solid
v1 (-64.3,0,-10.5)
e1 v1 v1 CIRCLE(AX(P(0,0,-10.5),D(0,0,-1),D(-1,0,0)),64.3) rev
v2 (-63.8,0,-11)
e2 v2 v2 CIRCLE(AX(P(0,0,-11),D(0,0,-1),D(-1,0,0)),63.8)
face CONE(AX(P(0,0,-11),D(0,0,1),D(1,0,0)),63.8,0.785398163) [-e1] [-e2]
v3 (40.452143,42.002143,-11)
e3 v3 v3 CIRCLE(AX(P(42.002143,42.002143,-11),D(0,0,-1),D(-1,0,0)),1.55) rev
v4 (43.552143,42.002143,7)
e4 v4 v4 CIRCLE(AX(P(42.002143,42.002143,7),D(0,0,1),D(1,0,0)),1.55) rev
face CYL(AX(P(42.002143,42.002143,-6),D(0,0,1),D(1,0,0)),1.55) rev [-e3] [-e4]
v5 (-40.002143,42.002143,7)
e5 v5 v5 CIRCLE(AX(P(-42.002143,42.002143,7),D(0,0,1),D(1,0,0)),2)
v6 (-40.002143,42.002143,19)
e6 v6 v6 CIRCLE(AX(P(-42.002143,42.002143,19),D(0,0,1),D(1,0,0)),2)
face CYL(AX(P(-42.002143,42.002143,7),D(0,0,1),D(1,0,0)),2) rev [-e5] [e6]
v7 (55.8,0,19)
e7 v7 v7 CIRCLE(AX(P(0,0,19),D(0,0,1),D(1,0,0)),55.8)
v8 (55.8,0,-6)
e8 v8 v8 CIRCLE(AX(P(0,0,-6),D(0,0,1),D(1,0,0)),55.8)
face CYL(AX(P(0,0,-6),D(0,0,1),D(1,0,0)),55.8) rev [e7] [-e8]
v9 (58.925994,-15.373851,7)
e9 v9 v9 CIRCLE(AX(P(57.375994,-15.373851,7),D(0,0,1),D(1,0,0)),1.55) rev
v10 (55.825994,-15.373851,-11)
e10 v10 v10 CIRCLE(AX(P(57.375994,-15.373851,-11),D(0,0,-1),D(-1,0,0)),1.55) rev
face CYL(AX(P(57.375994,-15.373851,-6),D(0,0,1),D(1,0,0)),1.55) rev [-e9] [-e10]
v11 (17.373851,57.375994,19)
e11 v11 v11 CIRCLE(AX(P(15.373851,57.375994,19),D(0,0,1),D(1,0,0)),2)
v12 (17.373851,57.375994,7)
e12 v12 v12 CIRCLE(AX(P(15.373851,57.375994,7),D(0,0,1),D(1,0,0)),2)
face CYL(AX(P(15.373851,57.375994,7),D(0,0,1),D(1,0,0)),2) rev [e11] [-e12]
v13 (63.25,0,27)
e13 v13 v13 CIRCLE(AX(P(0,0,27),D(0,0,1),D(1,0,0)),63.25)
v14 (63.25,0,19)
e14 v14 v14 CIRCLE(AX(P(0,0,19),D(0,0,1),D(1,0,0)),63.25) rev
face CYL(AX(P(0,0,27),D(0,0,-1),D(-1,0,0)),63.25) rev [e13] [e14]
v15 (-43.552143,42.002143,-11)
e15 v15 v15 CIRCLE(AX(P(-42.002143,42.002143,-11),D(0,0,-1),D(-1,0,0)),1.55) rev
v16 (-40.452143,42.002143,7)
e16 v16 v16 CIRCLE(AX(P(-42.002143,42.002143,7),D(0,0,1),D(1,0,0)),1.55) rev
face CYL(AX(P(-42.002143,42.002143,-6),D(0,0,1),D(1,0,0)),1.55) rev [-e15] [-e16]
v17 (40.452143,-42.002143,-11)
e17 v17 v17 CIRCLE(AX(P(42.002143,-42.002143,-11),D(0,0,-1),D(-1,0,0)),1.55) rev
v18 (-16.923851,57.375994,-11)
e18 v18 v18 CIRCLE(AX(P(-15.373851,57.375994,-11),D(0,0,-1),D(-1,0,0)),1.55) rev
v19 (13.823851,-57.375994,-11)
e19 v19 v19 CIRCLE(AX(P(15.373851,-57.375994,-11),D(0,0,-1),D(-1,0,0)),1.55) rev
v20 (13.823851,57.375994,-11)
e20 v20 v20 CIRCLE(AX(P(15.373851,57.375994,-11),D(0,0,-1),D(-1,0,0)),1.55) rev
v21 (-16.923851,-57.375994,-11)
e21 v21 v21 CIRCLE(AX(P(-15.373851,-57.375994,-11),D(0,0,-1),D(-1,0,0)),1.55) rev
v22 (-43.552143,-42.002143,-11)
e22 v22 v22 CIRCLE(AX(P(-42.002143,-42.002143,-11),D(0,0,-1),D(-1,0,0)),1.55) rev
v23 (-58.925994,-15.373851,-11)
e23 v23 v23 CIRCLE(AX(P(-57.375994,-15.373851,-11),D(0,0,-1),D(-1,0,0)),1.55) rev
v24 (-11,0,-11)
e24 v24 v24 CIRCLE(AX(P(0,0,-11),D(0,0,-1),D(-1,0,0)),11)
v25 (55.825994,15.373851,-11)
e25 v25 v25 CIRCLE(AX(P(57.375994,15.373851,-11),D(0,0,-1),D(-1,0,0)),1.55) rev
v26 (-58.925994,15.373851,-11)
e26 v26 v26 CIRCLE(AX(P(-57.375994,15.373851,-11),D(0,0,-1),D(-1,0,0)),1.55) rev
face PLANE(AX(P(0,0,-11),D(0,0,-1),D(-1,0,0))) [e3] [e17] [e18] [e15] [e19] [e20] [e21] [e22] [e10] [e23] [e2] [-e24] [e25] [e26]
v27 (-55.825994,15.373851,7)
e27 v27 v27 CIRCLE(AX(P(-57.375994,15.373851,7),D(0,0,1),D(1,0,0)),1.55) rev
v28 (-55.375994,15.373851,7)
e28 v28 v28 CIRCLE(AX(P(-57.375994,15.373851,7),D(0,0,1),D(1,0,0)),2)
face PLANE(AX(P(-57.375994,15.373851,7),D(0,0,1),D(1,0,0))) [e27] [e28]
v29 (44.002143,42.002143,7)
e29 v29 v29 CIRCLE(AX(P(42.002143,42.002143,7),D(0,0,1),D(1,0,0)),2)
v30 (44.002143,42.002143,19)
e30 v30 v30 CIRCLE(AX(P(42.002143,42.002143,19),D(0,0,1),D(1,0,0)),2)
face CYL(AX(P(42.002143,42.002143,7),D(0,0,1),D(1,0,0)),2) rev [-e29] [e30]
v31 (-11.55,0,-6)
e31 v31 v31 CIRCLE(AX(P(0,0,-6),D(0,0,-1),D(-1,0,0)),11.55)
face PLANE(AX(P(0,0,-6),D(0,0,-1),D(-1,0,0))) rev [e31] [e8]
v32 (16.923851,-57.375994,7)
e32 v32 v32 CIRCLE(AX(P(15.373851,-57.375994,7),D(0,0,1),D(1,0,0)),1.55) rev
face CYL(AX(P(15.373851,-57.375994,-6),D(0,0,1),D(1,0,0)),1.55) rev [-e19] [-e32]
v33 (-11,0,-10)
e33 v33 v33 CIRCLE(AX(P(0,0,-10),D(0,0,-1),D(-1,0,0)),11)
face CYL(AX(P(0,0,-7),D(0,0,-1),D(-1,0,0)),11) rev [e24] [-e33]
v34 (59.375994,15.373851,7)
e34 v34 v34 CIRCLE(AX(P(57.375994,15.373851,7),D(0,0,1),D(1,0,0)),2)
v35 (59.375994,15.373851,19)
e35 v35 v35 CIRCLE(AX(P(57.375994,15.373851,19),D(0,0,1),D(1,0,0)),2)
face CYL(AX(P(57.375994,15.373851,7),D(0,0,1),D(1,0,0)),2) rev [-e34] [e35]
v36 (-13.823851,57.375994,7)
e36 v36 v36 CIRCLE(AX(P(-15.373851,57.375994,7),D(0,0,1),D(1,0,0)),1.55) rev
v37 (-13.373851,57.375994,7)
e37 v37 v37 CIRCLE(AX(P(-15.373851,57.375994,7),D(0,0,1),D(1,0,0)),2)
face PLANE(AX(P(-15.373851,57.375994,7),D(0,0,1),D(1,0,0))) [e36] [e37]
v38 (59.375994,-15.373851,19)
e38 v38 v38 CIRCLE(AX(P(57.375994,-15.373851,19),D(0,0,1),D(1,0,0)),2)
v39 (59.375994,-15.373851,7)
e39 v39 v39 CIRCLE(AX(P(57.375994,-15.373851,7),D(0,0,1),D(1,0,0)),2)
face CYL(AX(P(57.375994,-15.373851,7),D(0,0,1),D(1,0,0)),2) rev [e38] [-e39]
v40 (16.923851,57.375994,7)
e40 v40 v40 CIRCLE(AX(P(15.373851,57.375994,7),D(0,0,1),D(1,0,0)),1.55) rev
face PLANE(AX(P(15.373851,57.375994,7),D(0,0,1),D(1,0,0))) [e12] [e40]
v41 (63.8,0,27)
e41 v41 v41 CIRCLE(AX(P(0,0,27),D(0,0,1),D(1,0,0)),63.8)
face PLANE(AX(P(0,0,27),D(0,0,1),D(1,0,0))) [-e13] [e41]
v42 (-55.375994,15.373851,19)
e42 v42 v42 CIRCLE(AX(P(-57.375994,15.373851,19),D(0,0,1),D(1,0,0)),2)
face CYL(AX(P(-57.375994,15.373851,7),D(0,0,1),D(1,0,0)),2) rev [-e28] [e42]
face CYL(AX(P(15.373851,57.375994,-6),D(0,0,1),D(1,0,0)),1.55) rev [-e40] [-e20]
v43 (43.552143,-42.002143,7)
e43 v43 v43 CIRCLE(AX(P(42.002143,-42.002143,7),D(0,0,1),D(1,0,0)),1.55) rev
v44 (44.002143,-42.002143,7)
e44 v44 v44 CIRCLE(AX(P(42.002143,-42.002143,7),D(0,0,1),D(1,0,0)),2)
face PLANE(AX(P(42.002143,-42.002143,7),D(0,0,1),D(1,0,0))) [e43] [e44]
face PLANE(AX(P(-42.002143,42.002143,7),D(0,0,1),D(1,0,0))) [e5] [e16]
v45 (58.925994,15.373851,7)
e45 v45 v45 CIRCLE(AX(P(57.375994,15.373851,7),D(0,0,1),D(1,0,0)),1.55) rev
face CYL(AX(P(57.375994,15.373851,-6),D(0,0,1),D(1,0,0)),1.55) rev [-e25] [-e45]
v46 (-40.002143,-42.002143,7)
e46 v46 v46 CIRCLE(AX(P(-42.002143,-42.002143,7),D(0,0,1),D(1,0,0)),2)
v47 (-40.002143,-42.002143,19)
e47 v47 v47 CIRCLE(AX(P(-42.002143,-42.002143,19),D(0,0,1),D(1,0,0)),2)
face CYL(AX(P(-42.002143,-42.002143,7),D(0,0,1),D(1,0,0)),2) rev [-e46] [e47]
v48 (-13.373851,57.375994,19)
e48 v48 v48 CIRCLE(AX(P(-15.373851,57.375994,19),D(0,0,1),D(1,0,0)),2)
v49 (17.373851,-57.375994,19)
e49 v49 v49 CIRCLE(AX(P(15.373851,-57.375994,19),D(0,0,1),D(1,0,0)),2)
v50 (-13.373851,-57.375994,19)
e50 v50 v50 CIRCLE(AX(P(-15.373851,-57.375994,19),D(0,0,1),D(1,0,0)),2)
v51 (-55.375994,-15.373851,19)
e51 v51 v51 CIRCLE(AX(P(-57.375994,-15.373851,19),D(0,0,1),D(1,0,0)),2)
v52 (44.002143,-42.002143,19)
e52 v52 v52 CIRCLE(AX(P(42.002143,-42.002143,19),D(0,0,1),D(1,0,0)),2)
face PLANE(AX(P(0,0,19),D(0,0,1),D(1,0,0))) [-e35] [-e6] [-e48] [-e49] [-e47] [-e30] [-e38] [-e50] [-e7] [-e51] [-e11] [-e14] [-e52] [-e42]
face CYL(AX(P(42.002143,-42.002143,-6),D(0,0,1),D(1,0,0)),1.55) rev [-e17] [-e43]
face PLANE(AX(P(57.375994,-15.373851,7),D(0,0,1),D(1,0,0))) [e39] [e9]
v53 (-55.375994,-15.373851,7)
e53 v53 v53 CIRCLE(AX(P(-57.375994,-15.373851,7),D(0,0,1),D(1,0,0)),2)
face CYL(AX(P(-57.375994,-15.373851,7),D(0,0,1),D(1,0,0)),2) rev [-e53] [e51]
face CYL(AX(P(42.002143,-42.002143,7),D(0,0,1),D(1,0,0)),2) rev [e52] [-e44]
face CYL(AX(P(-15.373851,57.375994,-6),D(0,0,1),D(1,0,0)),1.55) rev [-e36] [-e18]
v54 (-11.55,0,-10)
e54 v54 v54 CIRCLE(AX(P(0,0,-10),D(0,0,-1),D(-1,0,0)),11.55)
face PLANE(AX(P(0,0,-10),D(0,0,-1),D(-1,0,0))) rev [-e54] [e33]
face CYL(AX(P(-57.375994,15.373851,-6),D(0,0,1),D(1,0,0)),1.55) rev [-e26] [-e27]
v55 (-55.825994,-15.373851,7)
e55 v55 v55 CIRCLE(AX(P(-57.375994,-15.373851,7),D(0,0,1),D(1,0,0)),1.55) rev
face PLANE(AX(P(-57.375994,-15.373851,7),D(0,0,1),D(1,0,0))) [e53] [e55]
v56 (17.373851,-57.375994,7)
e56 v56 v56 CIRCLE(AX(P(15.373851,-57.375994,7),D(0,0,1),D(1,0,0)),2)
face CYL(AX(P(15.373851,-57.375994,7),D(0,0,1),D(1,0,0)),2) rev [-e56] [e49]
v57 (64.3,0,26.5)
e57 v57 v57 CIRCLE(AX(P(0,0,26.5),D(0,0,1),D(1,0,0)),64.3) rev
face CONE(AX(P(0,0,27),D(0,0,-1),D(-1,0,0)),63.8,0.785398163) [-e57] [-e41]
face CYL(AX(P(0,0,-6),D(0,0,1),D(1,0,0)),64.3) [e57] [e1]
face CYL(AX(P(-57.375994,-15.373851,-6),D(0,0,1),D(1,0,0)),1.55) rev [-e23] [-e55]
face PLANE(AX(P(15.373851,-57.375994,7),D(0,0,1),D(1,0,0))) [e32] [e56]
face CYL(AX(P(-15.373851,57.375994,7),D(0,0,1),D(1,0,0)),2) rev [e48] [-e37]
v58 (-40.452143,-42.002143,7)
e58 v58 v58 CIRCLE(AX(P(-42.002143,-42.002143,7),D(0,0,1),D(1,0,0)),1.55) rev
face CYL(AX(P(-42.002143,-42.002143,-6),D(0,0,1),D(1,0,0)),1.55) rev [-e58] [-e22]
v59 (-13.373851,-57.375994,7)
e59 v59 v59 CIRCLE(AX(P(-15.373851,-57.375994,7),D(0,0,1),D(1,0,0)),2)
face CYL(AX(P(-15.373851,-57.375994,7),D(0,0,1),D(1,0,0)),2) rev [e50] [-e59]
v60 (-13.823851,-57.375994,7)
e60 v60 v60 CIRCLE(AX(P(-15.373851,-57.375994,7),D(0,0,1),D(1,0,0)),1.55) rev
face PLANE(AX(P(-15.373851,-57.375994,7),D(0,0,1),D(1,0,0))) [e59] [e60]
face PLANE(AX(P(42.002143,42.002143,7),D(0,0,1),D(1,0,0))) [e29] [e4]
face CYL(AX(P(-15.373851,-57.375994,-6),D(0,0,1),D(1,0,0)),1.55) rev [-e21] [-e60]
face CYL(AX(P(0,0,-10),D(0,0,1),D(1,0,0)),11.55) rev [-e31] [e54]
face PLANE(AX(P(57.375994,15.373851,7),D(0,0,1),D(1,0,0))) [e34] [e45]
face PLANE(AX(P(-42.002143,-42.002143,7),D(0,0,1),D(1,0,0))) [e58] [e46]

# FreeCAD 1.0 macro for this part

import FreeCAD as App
import Part
import Sketcher

V = App.Vector


def edges_at(feature, points):
    """Names of the edges that pass closest to the given points."""
    edges = feature.Shape.Edges
    near = lambda p: min(range(len(edges)), key=lambda i: edges[i].distToShape(Part.Vertex(*p))[0])
    return sorted({f"Edge{near(p) + 1}" for p in points})

doc = App.newDocument("Part")
params = doc.addObject("Spreadsheet::Sheet", "Params")
for row, (alias, value) in enumerate([
    ("sketch1_diameter", "128.6 mm"),
    ("sketch1_diameter2", "3.1 mm"),
    ("sketch1_diameter3", "111.6 mm"),
    ("pad1_length", "25 mm"),
    ("sketch2_diameter", "128.6 mm"),
    ("sketch2_diameter2", "3.1 mm"),
    ("pad2_length", "5 mm"),
    ("sketch3_diameter", "23.1 mm"),
    ("pocket1_length", "4 mm"),
    ("sketch4_diameter", "22 mm"),
    ("pocket2_length", "4 mm"),
    ("sketch5_diameter", "128.6 mm"),
    ("sketch5_diameter2", "126.5 mm"),
    ("pad3_length", "8 mm"),
    ("sketch6_diameter", "4 mm"),
    ("pocket3_length", "12 mm"),
    ("chamfer_size", "0.5 mm"),
], start=1):
    params.set(f"A{row}", alias)
    params.set(f"B{row}", "=" + value)
    params.setAlias(f"B{row}", alias)

body = doc.addObject("PartDesign::Body", "Body")

sketch1 = body.newObject("Sketcher::SketchObject", "Sketch")
sketch1.AttachmentSupport = (doc.getObject("XY_Plane"), [""])
sketch1.MapMode = "FlatFace"
sketch1.AttachmentOffset = App.Placement(V(0, 0, 19), App.Rotation())
sketch1.addGeometry(Part.Circle(V(0, 0, 0), V(0, 0, 1), 64.3), False)
sketch1.addGeometry(Part.Circle(V(-42, -42, 0), V(0, 0, 1), 1.6), False)
sketch1.addGeometry(Part.Circle(V(-15.4, -57.4, 0), V(0, 0, 1), 1.6), False)
sketch1.addGeometry(Part.Circle(V(-57.4, -15.4, 0), V(0, 0, 1), 1.6), False)
sketch1.addGeometry(Part.Circle(V(15.4, -57.4, 0), V(0, 0, 1), 1.6), False)
sketch1.addGeometry(Part.Circle(V(42, -42, 0), V(0, 0, 1), 1.6), False)
sketch1.addGeometry(Part.Circle(V(0, 0, 0), V(0, 0, 1), 55.8), False)
sketch1.addGeometry(Part.Circle(V(57.4, -15.4, 0), V(0, 0, 1), 1.6), False)
sketch1.addGeometry(Part.Circle(V(-57.4, 15.4, 0), V(0, 0, 1), 1.6), False)
sketch1.addGeometry(Part.Circle(V(-42, 42, 0), V(0, 0, 1), 1.6), False)
sketch1.addGeometry(Part.Circle(V(-15.4, 57.4, 0), V(0, 0, 1), 1.6), False)
sketch1.addGeometry(Part.Circle(V(57.4, 15.4, 0), V(0, 0, 1), 1.6), False)
sketch1.addGeometry(Part.Circle(V(15.4, 57.4, 0), V(0, 0, 1), 1.6), False)
sketch1.addGeometry(Part.Circle(V(42, 42, 0), V(0, 0, 1), 1.6), False)
sketch1.addConstraint(Sketcher.Constraint("Coincident", 0, 3, -1, 1))
sketch1.addConstraint(Sketcher.Constraint("Coincident", 6, 3, -1, 1))
sketch1.addConstraint(Sketcher.Constraint("Equal", 1, 2))
sketch1.addConstraint(Sketcher.Constraint("Equal", 2, 3))
sketch1.addConstraint(Sketcher.Constraint("Equal", 3, 4))
sketch1.addConstraint(Sketcher.Constraint("Equal", 4, 5))
sketch1.addConstraint(Sketcher.Constraint("Equal", 5, 7))
sketch1.addConstraint(Sketcher.Constraint("Equal", 7, 8))
sketch1.addConstraint(Sketcher.Constraint("Equal", 8, 9))
sketch1.addConstraint(Sketcher.Constraint("Equal", 9, 10))
sketch1.addConstraint(Sketcher.Constraint("Equal", 10, 11))
sketch1.addConstraint(Sketcher.Constraint("Equal", 11, 12))
sketch1.addConstraint(Sketcher.Constraint("Equal", 12, 13))
sketch1.addConstraint(Sketcher.Constraint("Symmetric", 7, 3, 8, 3, -1, 1))
sketch1.addConstraint(Sketcher.Constraint("Symmetric", 5, 3, 9, 3, -1, 1))
sketch1.addConstraint(Sketcher.Constraint("Symmetric", 4, 3, 10, 3, -1, 1))
sketch1.addConstraint(Sketcher.Constraint("Symmetric", 3, 3, 11, 3, -1, 1))
sketch1.addConstraint(Sketcher.Constraint("Symmetric", 2, 3, 12, 3, -1, 1))
sketch1.addConstraint(Sketcher.Constraint("Symmetric", 1, 3, 13, 3, -1, 1))
sketch1.addConstraint(Sketcher.Constraint("Symmetric", 2, 3, 4, 3, -2))
sketch1.addConstraint(Sketcher.Constraint("Symmetric", 1, 3, 5, 3, -2))
sketch1.addConstraint(Sketcher.Constraint("Symmetric", 3, 3, 7, 3, -2))
sketch1.addConstraint(Sketcher.Constraint("Diameter", 0, 128.6))
sketch1.addConstraint(Sketcher.Constraint("Diameter", 1, 3.1))
sketch1.addConstraint(Sketcher.Constraint("Diameter", 6, 111.6))
sketch1.addConstraint(Sketcher.Constraint("DistanceX", 2, 3, -1, 1, 15.373851))
sketch1.addConstraint(Sketcher.Constraint("DistanceY", 3, 3, -1, 1, 15.373851))
sketch1.addConstraint(Sketcher.Constraint("DistanceX", 1, 3, 2, 3, 26.628292))
sketch1.addConstraint(Sketcher.Constraint("DistanceY", 2, 3, 1, 3, 15.373851))
sketch1.addConstraint(Sketcher.Constraint("DistanceX", 3, 3, 1, 3, 15.373851))
sketch1.addConstraint(Sketcher.Constraint("DistanceY", 1, 3, 3, 3, 26.628292))
sketch1.setExpression("Constraints[22]", "Params.sketch1_diameter")
sketch1.setExpression("Constraints[23]", "Params.sketch1_diameter2")
sketch1.setExpression("Constraints[24]", "Params.sketch1_diameter3")
pad1 = body.newObject("PartDesign::Pad", "Pad")
pad1.Profile = sketch1
pad1.setExpression("Length", "Params.pad1_length")
pad1.Reversed = True

sketch2 = body.newObject("Sketcher::SketchObject", "Sketch001")
sketch2.AttachmentSupport = (doc.getObject("XY_Plane"), [""])
sketch2.MapMode = "FlatFace"
sketch2.AttachmentOffset = App.Placement(V(0, 0, -6), App.Rotation())
sketch2.addGeometry(Part.Circle(V(0, 0, 0), V(0, 0, 1), 64.3), False)
sketch2.addGeometry(Part.Circle(V(-42, 42, 0), V(0, 0, 1), 1.6), False)
sketch2.addGeometry(Part.Circle(V(-15.4, 57.4, 0), V(0, 0, 1), 1.6), False)
sketch2.addGeometry(Part.Circle(V(-57.4, 15.4, 0), V(0, 0, 1), 1.6), False)
sketch2.addGeometry(Part.Circle(V(15.4, 57.4, 0), V(0, 0, 1), 1.6), False)
sketch2.addGeometry(Part.Circle(V(42, 42, 0), V(0, 0, 1), 1.6), False)
sketch2.addGeometry(Part.Circle(V(57.4, 15.4, 0), V(0, 0, 1), 1.6), False)
sketch2.addGeometry(Part.Circle(V(-57.4, -15.4, 0), V(0, 0, 1), 1.6), False)
sketch2.addGeometry(Part.Circle(V(-42, -42, 0), V(0, 0, 1), 1.6), False)
sketch2.addGeometry(Part.Circle(V(-15.4, -57.4, 0), V(0, 0, 1), 1.6), False)
sketch2.addGeometry(Part.Circle(V(57.4, -15.4, 0), V(0, 0, 1), 1.6), False)
sketch2.addGeometry(Part.Circle(V(15.4, -57.4, 0), V(0, 0, 1), 1.6), False)
sketch2.addGeometry(Part.Circle(V(42, -42, 0), V(0, 0, 1), 1.6), False)
sketch2.addConstraint(Sketcher.Constraint("Coincident", 0, 3, -1, 1))
sketch2.addConstraint(Sketcher.Constraint("Equal", 1, 2))
sketch2.addConstraint(Sketcher.Constraint("Equal", 2, 3))
sketch2.addConstraint(Sketcher.Constraint("Equal", 3, 4))
sketch2.addConstraint(Sketcher.Constraint("Equal", 4, 5))
sketch2.addConstraint(Sketcher.Constraint("Equal", 5, 6))
sketch2.addConstraint(Sketcher.Constraint("Equal", 6, 7))
sketch2.addConstraint(Sketcher.Constraint("Equal", 7, 8))
sketch2.addConstraint(Sketcher.Constraint("Equal", 8, 9))
sketch2.addConstraint(Sketcher.Constraint("Equal", 9, 10))
sketch2.addConstraint(Sketcher.Constraint("Equal", 10, 11))
sketch2.addConstraint(Sketcher.Constraint("Equal", 11, 12))
sketch2.addConstraint(Sketcher.Constraint("Symmetric", 6, 3, 7, 3, -1, 1))
sketch2.addConstraint(Sketcher.Constraint("Symmetric", 5, 3, 8, 3, -1, 1))
sketch2.addConstraint(Sketcher.Constraint("Symmetric", 4, 3, 9, 3, -1, 1))
sketch2.addConstraint(Sketcher.Constraint("Symmetric", 3, 3, 10, 3, -1, 1))
sketch2.addConstraint(Sketcher.Constraint("Symmetric", 2, 3, 11, 3, -1, 1))
sketch2.addConstraint(Sketcher.Constraint("Symmetric", 1, 3, 12, 3, -1, 1))
sketch2.addConstraint(Sketcher.Constraint("Symmetric", 2, 3, 4, 3, -2))
sketch2.addConstraint(Sketcher.Constraint("Symmetric", 1, 3, 5, 3, -2))
sketch2.addConstraint(Sketcher.Constraint("Symmetric", 3, 3, 6, 3, -2))
sketch2.addConstraint(Sketcher.Constraint("Diameter", 0, 128.6))
sketch2.addConstraint(Sketcher.Constraint("Diameter", 1, 3.1))
sketch2.addConstraint(Sketcher.Constraint("DistanceX", 2, 3, -1, 1, 15.373851))
sketch2.addConstraint(Sketcher.Constraint("DistanceY", -1, 1, 3, 3, 15.373851))
sketch2.addConstraint(Sketcher.Constraint("DistanceX", 1, 3, 2, 3, 26.628292))
sketch2.addConstraint(Sketcher.Constraint("DistanceY", 1, 3, 2, 3, 15.373851))
sketch2.addConstraint(Sketcher.Constraint("DistanceX", 3, 3, 1, 3, 15.373851))
sketch2.addConstraint(Sketcher.Constraint("DistanceY", 3, 3, 1, 3, 26.628292))
sketch2.setExpression("Constraints[21]", "Params.sketch2_diameter")
sketch2.setExpression("Constraints[22]", "Params.sketch2_diameter2")
pad2 = body.newObject("PartDesign::Pad", "Pad001")
pad2.Profile = sketch2
pad2.setExpression("Length", "Params.pad2_length")
pad2.Reversed = True

sketch3 = body.newObject("Sketcher::SketchObject", "Sketch002")
sketch3.AttachmentSupport = (doc.getObject("XY_Plane"), [""])
sketch3.MapMode = "FlatFace"
sketch3.AttachmentOffset = App.Placement(V(0, 0, -6), App.Rotation())
sketch3.addGeometry(Part.Circle(V(0, 0, 0), V(0, 0, 1), 12), False)
sketch3.addConstraint(Sketcher.Constraint("Coincident", 0, 3, -1, 1))
sketch3.addConstraint(Sketcher.Constraint("Diameter", 0, 23.1))
sketch3.setExpression("Constraints[1]", "Params.sketch3_diameter")
pocket1 = body.newObject("PartDesign::Pocket", "Pocket")
pocket1.Profile = sketch3
pocket1.setExpression("Length", "Params.pocket1_length")

sketch4 = body.newObject("Sketcher::SketchObject", "Sketch003")
sketch4.AttachmentSupport = (doc.getObject("XY_Plane"), [""])
sketch4.MapMode = "FlatFace"
sketch4.AttachmentOffset = App.Placement(V(0, 0, -11), App.Rotation())
sketch4.addGeometry(Part.Circle(V(0, 0, 0), V(0, 0, 1), 11), False)
sketch4.addConstraint(Sketcher.Constraint("Coincident", 0, 3, -1, 1))
sketch4.addConstraint(Sketcher.Constraint("Diameter", 0, 22.0))
sketch4.setExpression("Constraints[1]", "Params.sketch4_diameter")
pocket2 = body.newObject("PartDesign::Pocket", "Pocket001")
pocket2.Profile = sketch4
pocket2.setExpression("Length", "Params.pocket2_length")
pocket2.Reversed = True

sketch5 = body.newObject("Sketcher::SketchObject", "Sketch004")
sketch5.AttachmentSupport = (doc.getObject("XY_Plane"), [""])
sketch5.MapMode = "FlatFace"
sketch5.AttachmentOffset = App.Placement(V(0, 0, 27), App.Rotation())
sketch5.addGeometry(Part.Circle(V(0, 0, 0), V(0, 0, 1), 64), False)
sketch5.addGeometry(Part.Circle(V(0, 0, 0), V(0, 0, 1), 63), False)
sketch5.addConstraint(Sketcher.Constraint("Coincident", 0, 3, -1, 1))
sketch5.addConstraint(Sketcher.Constraint("Coincident", 1, 3, -1, 1))
sketch5.addConstraint(Sketcher.Constraint("Diameter", 0, 128.6))
sketch5.addConstraint(Sketcher.Constraint("Diameter", 1, 126.5))
sketch5.setExpression("Constraints[2]", "Params.sketch5_diameter")
sketch5.setExpression("Constraints[3]", "Params.sketch5_diameter2")
pad3 = body.newObject("PartDesign::Pad", "Pad002")
pad3.Profile = sketch5
pad3.setExpression("Length", "Params.pad3_length")
pad3.Reversed = True

sketch6 = body.newObject("Sketcher::SketchObject", "Sketch005")
sketch6.AttachmentSupport = (doc.getObject("XY_Plane"), [""])
sketch6.MapMode = "FlatFace"
sketch6.AttachmentOffset = App.Placement(V(0, 0, 19), App.Rotation())
sketch6.addGeometry(Part.Circle(V(57.4, -15.4, 0), V(0, 0, 1), 2), False)
sketch6.addGeometry(Part.Circle(V(42, -42, 0), V(0, 0, 1), 2), False)
sketch6.addGeometry(Part.Circle(V(15.4, -57.4, 0), V(0, 0, 1), 2), False)
sketch6.addGeometry(Part.Circle(V(-15.4, -57.4, 0), V(0, 0, 1), 2), False)
sketch6.addGeometry(Part.Circle(V(-42, -42, 0), V(0, 0, 1), 2), False)
sketch6.addGeometry(Part.Circle(V(-57.4, -15.4, 0), V(0, 0, 1), 2), False)
sketch6.addGeometry(Part.Circle(V(-57.4, 15.4, 0), V(0, 0, 1), 2), False)
sketch6.addGeometry(Part.Circle(V(-42, 42, 0), V(0, 0, 1), 2), False)
sketch6.addGeometry(Part.Circle(V(-15.4, 57.4, 0), V(0, 0, 1), 2), False)
sketch6.addGeometry(Part.Circle(V(15.4, 57.4, 0), V(0, 0, 1), 2), False)
sketch6.addGeometry(Part.Circle(V(42, 42, 0), V(0, 0, 1), 2), False)
sketch6.addGeometry(Part.Circle(V(57.4, 15.4, 0), V(0, 0, 1), 2), False)
sketch6.addConstraint(Sketcher.Constraint("Equal", 0, 1))
sketch6.addConstraint(Sketcher.Constraint("Equal", 1, 2))
sketch6.addConstraint(Sketcher.Constraint("Equal", 2, 3))
sketch6.addConstraint(Sketcher.Constraint("Equal", 3, 4))
sketch6.addConstraint(Sketcher.Constraint("Equal", 4, 5))
sketch6.addConstraint(Sketcher.Constraint("Equal", 5, 6))
sketch6.addConstraint(Sketcher.Constraint("Equal", 6, 7))
sketch6.addConstraint(Sketcher.Constraint("Equal", 7, 8))
sketch6.addConstraint(Sketcher.Constraint("Equal", 8, 9))
sketch6.addConstraint(Sketcher.Constraint("Equal", 9, 10))
sketch6.addConstraint(Sketcher.Constraint("Equal", 10, 11))
sketch6.addConstraint(Sketcher.Constraint("Symmetric", 0, 3, 6, 3, -1, 1))
sketch6.addConstraint(Sketcher.Constraint("Symmetric", 1, 3, 7, 3, -1, 1))
sketch6.addConstraint(Sketcher.Constraint("Symmetric", 2, 3, 8, 3, -1, 1))
sketch6.addConstraint(Sketcher.Constraint("Symmetric", 3, 3, 9, 3, -1, 1))
sketch6.addConstraint(Sketcher.Constraint("Symmetric", 4, 3, 10, 3, -1, 1))
sketch6.addConstraint(Sketcher.Constraint("Symmetric", 5, 3, 11, 3, -1, 1))
sketch6.addConstraint(Sketcher.Constraint("Symmetric", 2, 3, 3, 3, -2))
sketch6.addConstraint(Sketcher.Constraint("Symmetric", 1, 3, 4, 3, -2))
sketch6.addConstraint(Sketcher.Constraint("Symmetric", 0, 3, 5, 3, -2))
sketch6.addConstraint(Sketcher.Constraint("Diameter", 0, 4.0))
sketch6.addConstraint(Sketcher.Constraint("DistanceY", 0, 3, -1, 1, 15.373851))
sketch6.addConstraint(Sketcher.Constraint("DistanceX", -1, 1, 2, 3, 15.373851))
sketch6.addConstraint(Sketcher.Constraint("DistanceX", 1, 3, 0, 3, 15.373851))
sketch6.addConstraint(Sketcher.Constraint("DistanceY", 1, 3, 0, 3, 26.628292))
sketch6.addConstraint(Sketcher.Constraint("DistanceX", 2, 3, 1, 3, 26.628292))
sketch6.addConstraint(Sketcher.Constraint("DistanceY", 2, 3, 1, 3, 15.373851))
sketch6.setExpression("Constraints[20]", "Params.sketch6_diameter")
pocket3 = body.newObject("PartDesign::Pocket", "Pocket002")
pocket3.Profile = sketch6
pocket3.setExpression("Length", "Params.pocket3_length")
doc.recompute()

chamfer = body.newObject("PartDesign::Chamfer", "Chamfer")
chamfer.Base = (pocket3, edges_at(pocket3, [(-64.3, 0, 27), (-64.3, 0, -11)]))
chamfer.setExpression("Size", "Params.chamfer_size")

doc.recompute()
